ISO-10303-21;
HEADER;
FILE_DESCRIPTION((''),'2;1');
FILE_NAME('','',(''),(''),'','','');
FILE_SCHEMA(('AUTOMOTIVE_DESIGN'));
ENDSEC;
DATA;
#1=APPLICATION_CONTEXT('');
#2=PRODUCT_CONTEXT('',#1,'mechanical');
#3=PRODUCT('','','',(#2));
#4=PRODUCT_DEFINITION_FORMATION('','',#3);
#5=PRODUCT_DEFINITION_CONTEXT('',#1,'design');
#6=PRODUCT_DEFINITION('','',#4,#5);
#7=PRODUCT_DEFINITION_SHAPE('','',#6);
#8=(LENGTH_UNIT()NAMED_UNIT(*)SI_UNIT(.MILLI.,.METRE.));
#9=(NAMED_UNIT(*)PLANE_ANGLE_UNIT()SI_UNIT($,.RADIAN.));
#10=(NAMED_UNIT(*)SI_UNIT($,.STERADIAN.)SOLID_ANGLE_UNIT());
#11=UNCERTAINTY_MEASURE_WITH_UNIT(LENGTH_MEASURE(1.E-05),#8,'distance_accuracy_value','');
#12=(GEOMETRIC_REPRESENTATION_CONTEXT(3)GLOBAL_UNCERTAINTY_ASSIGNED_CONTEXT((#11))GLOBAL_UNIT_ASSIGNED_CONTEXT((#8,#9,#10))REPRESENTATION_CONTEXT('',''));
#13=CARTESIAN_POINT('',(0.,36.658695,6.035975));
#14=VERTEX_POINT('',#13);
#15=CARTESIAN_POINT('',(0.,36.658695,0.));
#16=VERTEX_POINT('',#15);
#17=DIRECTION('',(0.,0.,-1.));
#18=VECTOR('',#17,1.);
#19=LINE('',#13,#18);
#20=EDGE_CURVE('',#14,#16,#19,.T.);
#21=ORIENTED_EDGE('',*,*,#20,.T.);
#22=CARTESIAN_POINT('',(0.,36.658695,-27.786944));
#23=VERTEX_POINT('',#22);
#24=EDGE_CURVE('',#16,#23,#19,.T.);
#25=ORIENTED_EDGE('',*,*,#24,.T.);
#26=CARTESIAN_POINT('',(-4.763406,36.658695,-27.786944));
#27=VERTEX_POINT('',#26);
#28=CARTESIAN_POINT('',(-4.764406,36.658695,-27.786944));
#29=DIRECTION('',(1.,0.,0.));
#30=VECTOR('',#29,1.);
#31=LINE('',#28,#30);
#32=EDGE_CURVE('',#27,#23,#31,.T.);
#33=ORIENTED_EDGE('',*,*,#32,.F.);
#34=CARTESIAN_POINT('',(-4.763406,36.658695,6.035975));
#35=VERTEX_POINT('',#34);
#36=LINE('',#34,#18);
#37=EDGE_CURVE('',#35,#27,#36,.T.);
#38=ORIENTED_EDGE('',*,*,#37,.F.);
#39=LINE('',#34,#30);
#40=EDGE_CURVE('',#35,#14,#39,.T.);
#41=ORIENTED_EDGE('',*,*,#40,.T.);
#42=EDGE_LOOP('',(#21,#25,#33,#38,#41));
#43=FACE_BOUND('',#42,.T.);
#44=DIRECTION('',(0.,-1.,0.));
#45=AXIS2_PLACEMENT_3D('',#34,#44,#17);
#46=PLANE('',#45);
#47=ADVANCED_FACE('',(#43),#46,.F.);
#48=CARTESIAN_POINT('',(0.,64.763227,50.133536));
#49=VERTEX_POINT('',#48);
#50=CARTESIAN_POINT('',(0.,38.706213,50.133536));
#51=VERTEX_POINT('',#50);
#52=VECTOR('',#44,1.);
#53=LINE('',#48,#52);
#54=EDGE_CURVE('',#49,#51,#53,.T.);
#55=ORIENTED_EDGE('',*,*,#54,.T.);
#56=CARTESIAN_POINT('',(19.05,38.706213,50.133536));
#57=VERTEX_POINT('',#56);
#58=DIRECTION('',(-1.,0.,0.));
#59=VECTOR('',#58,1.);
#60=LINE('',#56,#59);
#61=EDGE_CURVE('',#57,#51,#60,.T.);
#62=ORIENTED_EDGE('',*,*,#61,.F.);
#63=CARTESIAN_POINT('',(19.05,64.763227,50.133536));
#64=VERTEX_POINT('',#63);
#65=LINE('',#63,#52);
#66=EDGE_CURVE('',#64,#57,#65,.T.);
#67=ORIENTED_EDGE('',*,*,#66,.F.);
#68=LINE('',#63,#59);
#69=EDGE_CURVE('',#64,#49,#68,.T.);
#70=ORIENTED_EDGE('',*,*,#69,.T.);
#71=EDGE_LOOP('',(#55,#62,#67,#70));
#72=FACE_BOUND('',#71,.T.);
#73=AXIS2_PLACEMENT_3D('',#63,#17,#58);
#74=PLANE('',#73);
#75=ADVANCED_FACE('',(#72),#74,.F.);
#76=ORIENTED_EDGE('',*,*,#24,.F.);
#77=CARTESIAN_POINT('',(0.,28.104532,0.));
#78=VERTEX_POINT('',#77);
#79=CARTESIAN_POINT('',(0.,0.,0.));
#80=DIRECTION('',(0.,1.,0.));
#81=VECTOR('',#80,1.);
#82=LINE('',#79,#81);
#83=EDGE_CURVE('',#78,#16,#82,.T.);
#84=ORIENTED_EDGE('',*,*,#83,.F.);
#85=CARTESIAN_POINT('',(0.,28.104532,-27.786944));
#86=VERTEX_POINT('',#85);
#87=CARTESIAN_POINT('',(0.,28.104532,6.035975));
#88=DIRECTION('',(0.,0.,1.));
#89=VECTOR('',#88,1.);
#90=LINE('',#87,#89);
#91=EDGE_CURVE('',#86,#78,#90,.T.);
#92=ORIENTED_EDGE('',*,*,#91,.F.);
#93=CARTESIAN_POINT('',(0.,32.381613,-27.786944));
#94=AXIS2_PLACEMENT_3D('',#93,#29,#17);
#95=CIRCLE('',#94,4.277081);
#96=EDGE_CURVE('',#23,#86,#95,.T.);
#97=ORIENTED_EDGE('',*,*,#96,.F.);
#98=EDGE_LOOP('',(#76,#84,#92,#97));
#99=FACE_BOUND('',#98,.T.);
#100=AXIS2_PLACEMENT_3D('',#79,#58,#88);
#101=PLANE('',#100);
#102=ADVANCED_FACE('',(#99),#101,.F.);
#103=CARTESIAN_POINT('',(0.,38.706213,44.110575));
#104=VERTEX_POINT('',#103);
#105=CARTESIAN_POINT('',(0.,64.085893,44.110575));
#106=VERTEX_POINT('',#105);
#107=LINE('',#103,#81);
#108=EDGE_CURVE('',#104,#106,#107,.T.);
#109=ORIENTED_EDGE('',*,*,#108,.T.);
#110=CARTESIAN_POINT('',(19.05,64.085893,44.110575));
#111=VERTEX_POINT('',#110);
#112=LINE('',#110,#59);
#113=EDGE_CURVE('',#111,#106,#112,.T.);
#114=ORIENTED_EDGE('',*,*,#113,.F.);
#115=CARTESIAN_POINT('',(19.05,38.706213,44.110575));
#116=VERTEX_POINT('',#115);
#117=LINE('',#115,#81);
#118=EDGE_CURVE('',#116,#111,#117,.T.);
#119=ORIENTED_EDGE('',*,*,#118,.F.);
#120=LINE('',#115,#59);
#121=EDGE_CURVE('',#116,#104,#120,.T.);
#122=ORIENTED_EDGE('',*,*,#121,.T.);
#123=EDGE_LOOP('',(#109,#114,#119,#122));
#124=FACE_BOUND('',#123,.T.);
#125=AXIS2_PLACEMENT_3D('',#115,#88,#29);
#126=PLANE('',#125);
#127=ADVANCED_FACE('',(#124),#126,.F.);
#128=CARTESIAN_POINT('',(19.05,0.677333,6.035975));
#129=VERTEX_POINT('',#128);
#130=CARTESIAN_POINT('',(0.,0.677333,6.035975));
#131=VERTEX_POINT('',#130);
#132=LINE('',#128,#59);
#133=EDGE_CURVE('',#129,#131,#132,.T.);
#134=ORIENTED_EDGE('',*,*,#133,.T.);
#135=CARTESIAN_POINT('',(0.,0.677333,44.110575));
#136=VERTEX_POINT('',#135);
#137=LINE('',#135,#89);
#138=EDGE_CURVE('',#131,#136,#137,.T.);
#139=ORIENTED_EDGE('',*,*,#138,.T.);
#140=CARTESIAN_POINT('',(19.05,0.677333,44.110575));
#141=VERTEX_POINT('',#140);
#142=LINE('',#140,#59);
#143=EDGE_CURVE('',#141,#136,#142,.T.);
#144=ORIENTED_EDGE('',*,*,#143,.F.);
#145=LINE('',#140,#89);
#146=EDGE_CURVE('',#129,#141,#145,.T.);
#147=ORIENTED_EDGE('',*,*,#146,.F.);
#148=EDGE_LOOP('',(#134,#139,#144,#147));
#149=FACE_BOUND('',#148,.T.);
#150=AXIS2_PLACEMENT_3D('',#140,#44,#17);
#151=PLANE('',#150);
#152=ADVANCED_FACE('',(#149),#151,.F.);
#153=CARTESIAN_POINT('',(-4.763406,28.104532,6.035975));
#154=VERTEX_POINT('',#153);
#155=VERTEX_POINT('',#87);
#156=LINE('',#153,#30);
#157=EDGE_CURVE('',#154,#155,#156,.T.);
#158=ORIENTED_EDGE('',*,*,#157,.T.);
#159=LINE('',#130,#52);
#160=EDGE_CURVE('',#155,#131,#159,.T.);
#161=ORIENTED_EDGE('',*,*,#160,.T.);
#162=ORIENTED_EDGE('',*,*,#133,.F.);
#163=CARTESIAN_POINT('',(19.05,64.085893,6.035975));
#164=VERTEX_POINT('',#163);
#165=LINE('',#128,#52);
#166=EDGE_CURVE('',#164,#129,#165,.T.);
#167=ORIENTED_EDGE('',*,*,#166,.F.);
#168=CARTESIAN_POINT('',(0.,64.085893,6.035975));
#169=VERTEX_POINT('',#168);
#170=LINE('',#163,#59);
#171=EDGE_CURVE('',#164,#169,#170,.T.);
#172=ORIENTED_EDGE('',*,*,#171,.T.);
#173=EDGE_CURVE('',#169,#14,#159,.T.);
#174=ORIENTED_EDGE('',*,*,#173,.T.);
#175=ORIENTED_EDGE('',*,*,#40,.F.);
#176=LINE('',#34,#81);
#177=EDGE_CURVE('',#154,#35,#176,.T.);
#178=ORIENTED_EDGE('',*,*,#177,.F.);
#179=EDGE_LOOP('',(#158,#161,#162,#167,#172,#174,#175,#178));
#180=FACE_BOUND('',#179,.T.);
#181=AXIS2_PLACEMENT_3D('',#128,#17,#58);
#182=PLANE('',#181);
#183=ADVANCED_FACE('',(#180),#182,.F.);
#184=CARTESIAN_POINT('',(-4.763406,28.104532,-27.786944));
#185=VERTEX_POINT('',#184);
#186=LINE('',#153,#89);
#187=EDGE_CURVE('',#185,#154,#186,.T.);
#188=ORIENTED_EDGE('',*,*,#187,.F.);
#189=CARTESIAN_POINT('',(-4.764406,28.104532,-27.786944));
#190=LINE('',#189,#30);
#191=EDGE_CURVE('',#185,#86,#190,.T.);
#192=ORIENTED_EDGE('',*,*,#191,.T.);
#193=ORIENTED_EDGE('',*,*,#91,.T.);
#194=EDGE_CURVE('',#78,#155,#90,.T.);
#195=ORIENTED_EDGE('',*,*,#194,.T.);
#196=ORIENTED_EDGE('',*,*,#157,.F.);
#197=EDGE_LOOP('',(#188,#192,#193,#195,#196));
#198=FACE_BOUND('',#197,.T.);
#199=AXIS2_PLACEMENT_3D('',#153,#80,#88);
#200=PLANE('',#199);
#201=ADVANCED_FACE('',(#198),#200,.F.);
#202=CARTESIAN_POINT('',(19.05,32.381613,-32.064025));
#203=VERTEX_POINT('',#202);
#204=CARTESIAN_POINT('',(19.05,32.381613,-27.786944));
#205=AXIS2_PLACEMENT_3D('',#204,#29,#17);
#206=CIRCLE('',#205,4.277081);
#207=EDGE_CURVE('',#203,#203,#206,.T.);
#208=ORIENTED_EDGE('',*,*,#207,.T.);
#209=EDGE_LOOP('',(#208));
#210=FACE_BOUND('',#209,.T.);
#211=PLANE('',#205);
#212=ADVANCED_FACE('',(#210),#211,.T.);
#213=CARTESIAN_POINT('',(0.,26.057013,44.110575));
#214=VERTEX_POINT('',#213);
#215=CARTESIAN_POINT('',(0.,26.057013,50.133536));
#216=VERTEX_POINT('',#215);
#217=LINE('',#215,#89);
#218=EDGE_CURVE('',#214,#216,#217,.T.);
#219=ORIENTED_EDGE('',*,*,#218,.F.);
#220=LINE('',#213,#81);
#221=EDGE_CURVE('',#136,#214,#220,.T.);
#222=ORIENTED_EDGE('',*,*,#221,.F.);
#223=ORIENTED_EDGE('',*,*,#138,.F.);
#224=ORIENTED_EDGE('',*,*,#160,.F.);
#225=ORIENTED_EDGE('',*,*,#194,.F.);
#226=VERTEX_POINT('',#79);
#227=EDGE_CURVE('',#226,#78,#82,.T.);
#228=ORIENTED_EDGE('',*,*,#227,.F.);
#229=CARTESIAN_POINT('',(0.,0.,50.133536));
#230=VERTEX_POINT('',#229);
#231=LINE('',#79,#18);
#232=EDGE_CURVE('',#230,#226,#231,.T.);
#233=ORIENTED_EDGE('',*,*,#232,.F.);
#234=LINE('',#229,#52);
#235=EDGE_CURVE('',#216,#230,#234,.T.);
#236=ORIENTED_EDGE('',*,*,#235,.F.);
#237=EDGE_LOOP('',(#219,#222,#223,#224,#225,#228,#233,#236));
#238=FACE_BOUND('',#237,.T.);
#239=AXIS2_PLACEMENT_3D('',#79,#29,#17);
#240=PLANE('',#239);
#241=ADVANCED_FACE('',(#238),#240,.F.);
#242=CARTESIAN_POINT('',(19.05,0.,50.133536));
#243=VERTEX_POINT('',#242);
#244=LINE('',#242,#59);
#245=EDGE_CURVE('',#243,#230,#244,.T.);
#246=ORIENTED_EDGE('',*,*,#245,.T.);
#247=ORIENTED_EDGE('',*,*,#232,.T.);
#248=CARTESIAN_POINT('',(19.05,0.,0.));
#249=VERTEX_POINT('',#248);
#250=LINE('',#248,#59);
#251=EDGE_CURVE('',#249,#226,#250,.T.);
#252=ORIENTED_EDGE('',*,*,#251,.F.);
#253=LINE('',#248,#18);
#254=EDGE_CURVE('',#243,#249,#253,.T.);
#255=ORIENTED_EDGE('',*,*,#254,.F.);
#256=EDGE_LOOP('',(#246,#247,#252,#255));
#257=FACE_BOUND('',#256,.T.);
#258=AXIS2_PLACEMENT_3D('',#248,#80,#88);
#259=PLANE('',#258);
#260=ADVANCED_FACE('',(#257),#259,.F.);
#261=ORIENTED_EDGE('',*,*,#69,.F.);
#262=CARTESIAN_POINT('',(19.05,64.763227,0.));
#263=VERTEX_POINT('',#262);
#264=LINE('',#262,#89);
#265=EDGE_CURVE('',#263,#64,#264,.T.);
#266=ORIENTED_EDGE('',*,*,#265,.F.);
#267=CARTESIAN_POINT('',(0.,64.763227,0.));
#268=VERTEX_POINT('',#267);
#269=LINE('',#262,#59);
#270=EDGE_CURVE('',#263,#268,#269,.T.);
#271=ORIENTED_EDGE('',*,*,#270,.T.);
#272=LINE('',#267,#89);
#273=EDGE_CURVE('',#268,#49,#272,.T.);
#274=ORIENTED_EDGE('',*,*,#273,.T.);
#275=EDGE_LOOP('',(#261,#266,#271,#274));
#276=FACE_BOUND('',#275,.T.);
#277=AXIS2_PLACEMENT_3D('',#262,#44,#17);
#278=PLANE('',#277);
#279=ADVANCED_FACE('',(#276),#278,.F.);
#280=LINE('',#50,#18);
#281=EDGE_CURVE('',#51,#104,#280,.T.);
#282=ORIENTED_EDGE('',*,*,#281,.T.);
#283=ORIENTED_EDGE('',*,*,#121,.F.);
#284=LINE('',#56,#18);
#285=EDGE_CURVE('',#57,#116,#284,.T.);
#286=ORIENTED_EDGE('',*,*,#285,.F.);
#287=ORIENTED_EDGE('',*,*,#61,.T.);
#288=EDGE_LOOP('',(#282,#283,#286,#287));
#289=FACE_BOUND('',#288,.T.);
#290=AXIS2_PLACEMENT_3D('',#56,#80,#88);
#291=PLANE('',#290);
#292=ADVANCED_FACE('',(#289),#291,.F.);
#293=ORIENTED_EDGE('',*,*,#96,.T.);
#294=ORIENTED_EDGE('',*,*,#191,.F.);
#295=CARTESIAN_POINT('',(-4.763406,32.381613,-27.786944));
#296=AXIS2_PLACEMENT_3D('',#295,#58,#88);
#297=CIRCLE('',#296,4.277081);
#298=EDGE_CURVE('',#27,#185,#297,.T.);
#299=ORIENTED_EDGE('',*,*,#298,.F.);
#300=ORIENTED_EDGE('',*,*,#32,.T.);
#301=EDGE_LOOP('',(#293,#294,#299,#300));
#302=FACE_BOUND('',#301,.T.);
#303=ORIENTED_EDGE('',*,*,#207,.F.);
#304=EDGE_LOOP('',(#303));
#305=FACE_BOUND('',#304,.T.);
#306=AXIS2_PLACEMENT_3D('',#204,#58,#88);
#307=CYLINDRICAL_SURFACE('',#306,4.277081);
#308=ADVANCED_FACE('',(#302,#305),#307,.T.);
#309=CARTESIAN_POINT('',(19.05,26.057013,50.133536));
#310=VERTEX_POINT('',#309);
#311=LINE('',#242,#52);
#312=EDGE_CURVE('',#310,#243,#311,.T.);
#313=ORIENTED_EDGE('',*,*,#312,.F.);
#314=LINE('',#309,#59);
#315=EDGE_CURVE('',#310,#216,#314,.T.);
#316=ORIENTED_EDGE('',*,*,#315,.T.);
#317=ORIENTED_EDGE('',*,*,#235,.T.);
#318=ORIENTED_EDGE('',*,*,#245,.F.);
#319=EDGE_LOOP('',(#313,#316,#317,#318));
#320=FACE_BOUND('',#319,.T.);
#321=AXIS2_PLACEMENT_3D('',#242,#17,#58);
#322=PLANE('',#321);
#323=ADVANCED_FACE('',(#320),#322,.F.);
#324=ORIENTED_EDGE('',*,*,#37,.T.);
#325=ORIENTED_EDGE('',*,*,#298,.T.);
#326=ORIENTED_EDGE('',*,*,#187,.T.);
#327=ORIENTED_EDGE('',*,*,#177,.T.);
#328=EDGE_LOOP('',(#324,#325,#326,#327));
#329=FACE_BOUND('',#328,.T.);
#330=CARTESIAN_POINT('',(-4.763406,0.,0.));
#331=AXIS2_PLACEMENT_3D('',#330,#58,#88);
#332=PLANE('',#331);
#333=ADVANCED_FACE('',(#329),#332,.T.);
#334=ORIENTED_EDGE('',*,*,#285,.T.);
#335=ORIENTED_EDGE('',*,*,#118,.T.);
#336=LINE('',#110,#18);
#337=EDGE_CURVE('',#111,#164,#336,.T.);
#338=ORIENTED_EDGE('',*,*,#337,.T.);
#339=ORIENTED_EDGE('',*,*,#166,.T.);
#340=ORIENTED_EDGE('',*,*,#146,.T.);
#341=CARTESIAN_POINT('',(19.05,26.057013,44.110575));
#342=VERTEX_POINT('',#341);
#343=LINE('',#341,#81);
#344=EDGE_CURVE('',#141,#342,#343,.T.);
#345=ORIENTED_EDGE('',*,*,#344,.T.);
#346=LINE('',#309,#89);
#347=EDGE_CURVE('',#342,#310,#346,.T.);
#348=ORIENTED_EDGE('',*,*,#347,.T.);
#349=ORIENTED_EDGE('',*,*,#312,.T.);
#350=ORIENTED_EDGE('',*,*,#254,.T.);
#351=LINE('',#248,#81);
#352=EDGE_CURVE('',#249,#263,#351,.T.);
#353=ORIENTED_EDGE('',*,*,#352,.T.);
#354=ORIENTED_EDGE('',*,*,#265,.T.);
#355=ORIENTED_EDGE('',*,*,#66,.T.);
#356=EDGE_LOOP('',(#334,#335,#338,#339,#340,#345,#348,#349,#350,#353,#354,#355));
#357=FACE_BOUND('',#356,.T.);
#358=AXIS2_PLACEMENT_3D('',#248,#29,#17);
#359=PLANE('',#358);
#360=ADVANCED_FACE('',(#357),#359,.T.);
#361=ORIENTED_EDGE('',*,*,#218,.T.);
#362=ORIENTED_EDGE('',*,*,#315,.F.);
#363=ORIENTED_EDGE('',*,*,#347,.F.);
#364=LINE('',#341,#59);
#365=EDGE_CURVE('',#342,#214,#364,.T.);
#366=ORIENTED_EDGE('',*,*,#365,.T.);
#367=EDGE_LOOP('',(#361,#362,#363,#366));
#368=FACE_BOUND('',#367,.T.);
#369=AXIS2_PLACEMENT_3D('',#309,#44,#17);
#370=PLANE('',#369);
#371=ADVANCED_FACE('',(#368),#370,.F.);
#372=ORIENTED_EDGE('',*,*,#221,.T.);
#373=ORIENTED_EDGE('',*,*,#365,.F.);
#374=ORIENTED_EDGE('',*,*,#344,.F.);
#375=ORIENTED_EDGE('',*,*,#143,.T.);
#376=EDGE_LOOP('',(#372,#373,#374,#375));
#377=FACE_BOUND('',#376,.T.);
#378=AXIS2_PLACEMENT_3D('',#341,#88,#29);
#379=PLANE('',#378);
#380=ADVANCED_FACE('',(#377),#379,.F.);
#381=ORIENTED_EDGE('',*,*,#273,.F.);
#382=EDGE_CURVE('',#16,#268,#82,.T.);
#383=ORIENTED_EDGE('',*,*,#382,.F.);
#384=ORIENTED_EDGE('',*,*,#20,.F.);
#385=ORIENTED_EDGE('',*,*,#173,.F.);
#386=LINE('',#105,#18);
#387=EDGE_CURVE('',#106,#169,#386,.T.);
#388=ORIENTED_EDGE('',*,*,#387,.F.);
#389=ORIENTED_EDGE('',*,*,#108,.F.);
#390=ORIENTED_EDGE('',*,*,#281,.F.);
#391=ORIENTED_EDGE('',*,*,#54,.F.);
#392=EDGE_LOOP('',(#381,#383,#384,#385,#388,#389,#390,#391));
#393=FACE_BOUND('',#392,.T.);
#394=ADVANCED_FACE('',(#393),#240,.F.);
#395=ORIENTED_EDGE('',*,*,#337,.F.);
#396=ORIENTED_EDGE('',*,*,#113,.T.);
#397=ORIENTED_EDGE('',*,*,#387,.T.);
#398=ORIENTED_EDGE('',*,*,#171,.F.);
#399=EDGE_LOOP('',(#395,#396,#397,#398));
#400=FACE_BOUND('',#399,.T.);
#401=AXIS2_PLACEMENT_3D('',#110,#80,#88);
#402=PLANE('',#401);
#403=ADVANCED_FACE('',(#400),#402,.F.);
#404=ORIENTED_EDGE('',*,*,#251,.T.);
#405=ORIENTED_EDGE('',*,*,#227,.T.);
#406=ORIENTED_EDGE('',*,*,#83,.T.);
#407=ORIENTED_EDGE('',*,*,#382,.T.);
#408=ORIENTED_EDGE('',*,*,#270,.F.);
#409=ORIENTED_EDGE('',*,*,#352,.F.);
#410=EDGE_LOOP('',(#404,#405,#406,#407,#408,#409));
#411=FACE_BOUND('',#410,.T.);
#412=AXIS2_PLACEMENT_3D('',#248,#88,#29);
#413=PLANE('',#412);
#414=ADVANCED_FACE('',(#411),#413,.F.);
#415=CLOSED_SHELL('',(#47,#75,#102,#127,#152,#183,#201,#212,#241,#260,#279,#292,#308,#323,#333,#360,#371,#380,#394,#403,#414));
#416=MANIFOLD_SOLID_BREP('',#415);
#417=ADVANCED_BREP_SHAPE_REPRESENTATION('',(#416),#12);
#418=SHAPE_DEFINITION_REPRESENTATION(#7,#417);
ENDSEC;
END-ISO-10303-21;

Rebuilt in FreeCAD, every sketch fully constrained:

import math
import FreeCAD as App
import Part
import Sketcher
Q = App.Units.Quantity


def add_polygon(sketch, points):
    """Adds a closed chain of lines whose ends are joined by coincident constraints."""
    first, n = sketch.GeometryCount, len(points)
    for a, b in zip(points, points[1:] + points[:1]):
        sketch.addGeometry(Part.LineSegment(App.Vector(*a, 0), App.Vector(*b, 0)), False)
    for i in range(n):
        sketch.addConstraint(Sketcher.Constraint("Coincident", first + i, 2, first + (i + 1) % n, 1))

doc = App.newDocument("Part")
body = doc.addObject("PartDesign::Body", "Body")

sketch1 = doc.addObject("Sketcher::SketchObject", "Sketch")
body.addObject(sketch1)
sketch1.AttachmentSupport = (doc.YZ_Plane, [""])
sketch1.MapMode = "FlatFace"
add_polygon(sketch1, [(0, 50), (0, 0), (65, 0), (65, 50), (39, 50), (39, 44), (64, 44), (64, 6), (1, 6), (1, 44), (26, 44), (26, 50)])
sketch1.addConstraint([
    Sketcher.Constraint("Vertical", 0),
    Sketcher.Constraint("Horizontal", 1),
    Sketcher.Constraint("Vertical", 2),
    Sketcher.Constraint("Horizontal", 3),
    Sketcher.Constraint("Vertical", 4),
    Sketcher.Constraint("Horizontal", 5),
    Sketcher.Constraint("Vertical", 6),
    Sketcher.Constraint("Horizontal", 7),
    Sketcher.Constraint("Vertical", 8),
    Sketcher.Constraint("Horizontal", 9),
    Sketcher.Constraint("Vertical", 10),
    Sketcher.Constraint("Horizontal", 11),
    Sketcher.Constraint("Coincident", 0, 2, -1, 1),
    Sketcher.Constraint("Horizontal", 5, 2, 8, 2),
    Sketcher.Constraint("Horizontal", 3, 2, 10, 2),
    Sketcher.Constraint("Equal", 5, 9),
    Sketcher.Constraint("Equal", 3, 11),
    Sketcher.Constraint("DistanceY", 6, 2, 6, 1, Q("1.499 in")),
    Sketcher.Constraint("DistanceX", 5, 1, 5, 2, Q("0.9992 in")),
    Sketcher.Constraint("DistanceX", 7, 2, 7, 1, Q("2.4964 in")),
    Sketcher.Constraint("DistanceY", 4, 2, 4, 1, 6.022961),
    Sketcher.Constraint("DistanceX", 1, 1, 1, 2, 64.763227),
    Sketcher.Constraint("DistanceY", 0, 2, 0, 1, 50.133536),
])
pad1 = doc.addObject("PartDesign::Pad", "Pad")
body.addObject(pad1)
pad1.Profile = sketch1
pad1.Length = Q("0.75 in")

sketch2 = doc.addObject("Sketcher::SketchObject", "Sketch001")
body.addObject(sketch2)
sketch2.AttachmentSupport = (doc.YZ_Plane, [""])
sketch2.MapMode = "FlatFace"
add_polygon(sketch2, [(37, 6), (37, -32), (28, -32), (28, 6)])
sketch2.addConstraint([
    Sketcher.Constraint("Vertical", 0),
    Sketcher.Constraint("Horizontal", 1),
    Sketcher.Constraint("Vertical", 2),
    Sketcher.Constraint("Horizontal", 3),
    Sketcher.Constraint("DistanceY", 0, 2, 0, 1, Q("1.5 in")),
    Sketcher.Constraint("DistanceX", 1, 2, 1, 1, 8.554163),
    Sketcher.Constraint("DistanceX", -1, 1, 1, 2, 28.104532),
    Sketcher.Constraint("DistanceY", 0, 2, -1, 1, 32.064025),
])
pad2 = doc.addObject("PartDesign::Pad", "Pad001")
body.addObject(pad2)
pad2.Profile = sketch2
pad2.Length = 4.763406
pad2.Reversed = True

sketch3 = doc.addObject("Sketcher::SketchObject", "Sketch002")
body.addObject(sketch3)
sketch3.AttachmentSupport = (doc.YZ_Plane, [""])
sketch3.MapMode = "FlatFace"
sketch3.addGeometry(Part.Circle(App.Vector(32.4, -27.8, 0), App.Vector(0, 0, 1), 4.3), False)
sketch3.addConstraint([
    Sketcher.Constraint("Diameter", 0, 8.554163),
    Sketcher.Constraint("DistanceX", -1, 1, 0, 3, 32.381613),
    Sketcher.Constraint("DistanceY", 0, 3, -1, 1, 27.786944),
])
pad3 = doc.addObject("PartDesign::Pad", "Pad002")
body.addObject(pad3)
pad3.Profile = sketch3
pad3.Length = Q("0.75 in")

sketch4 = doc.addObject("Sketcher::SketchObject", "Sketch003")
body.addObject(sketch4)
sketch4.AttachmentSupport = (doc.YZ_Plane, [""])
sketch4.MapMode = "FlatFace"
sketch4.addGeometry([
    Part.LineSegment(App.Vector(32.4, -32.1, 0), App.Vector(36.7, -32.1, 0)),
    Part.LineSegment(App.Vector(36.7, -32.1, 0), App.Vector(36.7, -27.8, 0)),
    Part.ArcOfCircle(Part.Circle(App.Vector(32.4, -27.8, 0), App.Vector(0, 0, 1), 4.3), math.radians(-90), math.radians(0)),
], False)
sketch4.addConstraint([
    Sketcher.Constraint("Coincident", 0, 2, 1, 1),
    Sketcher.Constraint("Tangent", 1, 2, 2, 2),
    Sketcher.Constraint("Tangent", 2, 1, 0, 1),
    Sketcher.Constraint("Horizontal", 0),
    Sketcher.Constraint("Vertical", 1),
    Sketcher.Constraint("Radius", 2, 4.277081),
    Sketcher.Constraint("DistanceX", -1, 1, 2, 3, 32.381613),
    Sketcher.Constraint("DistanceY", 2, 3, -1, 1, 27.786944),
])
pocket1 = doc.addObject("PartDesign::Pocket", "Pocket")
body.addObject(pocket1)
pocket1.Profile = sketch4
pocket1.Type = "UpToFirst"

sketch5 = doc.addObject("Sketcher::SketchObject", "Sketch004")
body.addObject(sketch5)
sketch5.AttachmentSupport = (doc.YZ_Plane, [""])
sketch5.MapMode = "FlatFace"
sketch5.addGeometry([
    Part.LineSegment(App.Vector(28.1, -27.8, 0), App.Vector(28.1, -32.1, 0)),
    Part.LineSegment(App.Vector(28.1, -32.1, 0), App.Vector(32.4, -32.1, 0)),
    Part.ArcOfCircle(Part.Circle(App.Vector(32.4, -27.8, 0), App.Vector(0, 0, 1), 4.3), math.radians(-180), math.radians(-90)),
], False)
sketch5.addConstraint([
    Sketcher.Constraint("Coincident", 0, 2, 1, 1),
    Sketcher.Constraint("Tangent", 1, 2, 2, 2),
    Sketcher.Constraint("Tangent", 2, 1, 0, 1),
    Sketcher.Constraint("Vertical", 0),
    Sketcher.Constraint("Horizontal", 1),
    Sketcher.Constraint("Radius", 2, 4.277081),
    Sketcher.Constraint("DistanceX", -1, 1, 0, 2, 28.104532),
    Sketcher.Constraint("DistanceY", 2, 3, -1, 1, 27.786944),
])
pocket2 = doc.addObject("PartDesign::Pocket", "Pocket001")
body.addObject(pocket2)
pocket2.Profile = sketch5
pocket2.Type = "UpToFirst"

doc.recompute()
